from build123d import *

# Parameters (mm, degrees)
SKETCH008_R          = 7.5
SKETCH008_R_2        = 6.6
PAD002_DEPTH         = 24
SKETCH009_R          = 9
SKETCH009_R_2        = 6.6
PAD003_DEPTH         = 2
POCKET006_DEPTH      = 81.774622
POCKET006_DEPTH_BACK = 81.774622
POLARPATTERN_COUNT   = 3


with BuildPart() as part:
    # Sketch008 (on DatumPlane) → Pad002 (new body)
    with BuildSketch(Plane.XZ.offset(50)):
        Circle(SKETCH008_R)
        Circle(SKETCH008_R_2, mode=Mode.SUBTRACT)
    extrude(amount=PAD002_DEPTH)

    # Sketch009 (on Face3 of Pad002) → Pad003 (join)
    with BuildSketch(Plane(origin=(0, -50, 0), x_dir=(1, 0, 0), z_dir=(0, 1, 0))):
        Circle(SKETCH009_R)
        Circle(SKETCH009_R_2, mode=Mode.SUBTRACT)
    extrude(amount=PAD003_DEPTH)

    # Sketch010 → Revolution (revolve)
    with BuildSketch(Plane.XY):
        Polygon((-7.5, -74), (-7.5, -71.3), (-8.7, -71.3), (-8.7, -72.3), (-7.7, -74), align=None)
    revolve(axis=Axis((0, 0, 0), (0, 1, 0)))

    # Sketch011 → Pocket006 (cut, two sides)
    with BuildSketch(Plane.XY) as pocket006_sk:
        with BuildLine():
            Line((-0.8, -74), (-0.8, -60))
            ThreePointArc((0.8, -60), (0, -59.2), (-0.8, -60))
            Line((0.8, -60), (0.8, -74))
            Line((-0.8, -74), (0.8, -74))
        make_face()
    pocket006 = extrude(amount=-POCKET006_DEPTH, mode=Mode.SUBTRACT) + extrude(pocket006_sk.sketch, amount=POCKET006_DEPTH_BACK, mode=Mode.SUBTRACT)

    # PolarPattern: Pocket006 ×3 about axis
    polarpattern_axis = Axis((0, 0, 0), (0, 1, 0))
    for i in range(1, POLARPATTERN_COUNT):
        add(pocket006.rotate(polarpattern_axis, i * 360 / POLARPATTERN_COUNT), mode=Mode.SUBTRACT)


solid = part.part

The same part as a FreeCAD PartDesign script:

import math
import FreeCAD as App
import Part
import Sketcher


def add_polygon(sketch, points):
    """Adds a closed chain of lines whose ends are joined by coincident constraints."""
    first, n = sketch.GeometryCount, len(points)
    for a, b in zip(points, points[1:] + points[:1]):
        sketch.addGeometry(Part.LineSegment(App.Vector(*a, 0), App.Vector(*b, 0)), False)
    for i in range(n):
        sketch.addConstraint(Sketcher.Constraint("Coincident", first + i, 2, first + (i + 1) % n, 1))

doc = App.newDocument("Part")
body = doc.addObject("PartDesign::Body", "Body")

sketch1 = doc.addObject("Sketcher::SketchObject", "Sketch")
body.addObject(sketch1)
sketch1.AttachmentSupport = (doc.XZ_Plane, [""])
sketch1.MapMode = "FlatFace"
sketch1.AttachmentOffset = App.Placement(App.Vector(0, 0, 50), App.Rotation())
sketch1.addGeometry([
    Part.Circle(App.Vector(0, 0, 0), App.Vector(0, 0, 1), 7.5),
    Part.Circle(App.Vector(0, 0, 0), App.Vector(0, 0, 1), 6.6),
], False)
sketch1.addConstraint([
    Sketcher.Constraint("Coincident", 0, 3, -1, 1),
    Sketcher.Constraint("Coincident", 1, 3, -1, 1),
    Sketcher.Constraint("Diameter", 0, 15.0),
    Sketcher.Constraint("Diameter", 1, 13.2),
])
pad1 = doc.addObject("PartDesign::Pad", "Pad")
body.addObject(pad1)
pad1.Profile = sketch1
pad1.Length = 24

sketch2 = doc.addObject("Sketcher::SketchObject", "Sketch001")
body.addObject(sketch2)
sketch2.AttachmentSupport = (doc.XZ_Plane, [""])
sketch2.MapMode = "FlatFace"
sketch2.AttachmentOffset = App.Placement(App.Vector(0, 0, 50), App.Rotation())
sketch2.addGeometry([
    Part.Circle(App.Vector(0, 0, 0), App.Vector(0, 0, 1), 9),
    Part.Circle(App.Vector(0, 0, 0), App.Vector(0, 0, 1), 6.6),
], False)
sketch2.addConstraint([
    Sketcher.Constraint("Coincident", 0, 3, -1, 1),
    Sketcher.Constraint("Coincident", 1, 3, -1, 1),
    Sketcher.Constraint("Diameter", 0, 18.0),
    Sketcher.Constraint("Diameter", 1, 13.2),
])
pad2 = doc.addObject("PartDesign::Pad", "Pad001")
body.addObject(pad2)
pad2.Profile = sketch2
pad2.Length = 2
pad2.Reversed = True

sketch3 = doc.addObject("Sketcher::SketchObject", "Sketch002")
body.addObject(sketch3)
sketch3.AttachmentSupport = (doc.XY_Plane, [""])
sketch3.MapMode = "FlatFace"
add_polygon(sketch3, [(-7.5, -74), (-7.5, -71.3), (-8.7, -71.3), (-8.7, -72.3), (-7.7, -74)])
sketch3.addConstraint([
    Sketcher.Constraint("Vertical", 0),
    Sketcher.Constraint("Horizontal", 1),
    Sketcher.Constraint("Vertical", 2),
    Sketcher.Constraint("Horizontal", 4),
    Sketcher.Constraint("DistanceY", 2, 2, 2, 1, 1.0),
    Sketcher.Constraint("DistanceX", 1, 2, 1, 1, 1.2),
    Sketcher.Constraint("DistanceX", 4, 1, 4, 2, 0.2),
    Sketcher.Constraint("DistanceY", 0, 1, 0, 2, 2.7),
    Sketcher.Constraint("DistanceY", 3, 2, -1, 1, 74.0),
    Sketcher.Constraint("DistanceX", 0, 2, -1, 1, 7.5),
])
revolution = doc.addObject("PartDesign::Revolution", "Revolution")
body.addObject(revolution)
revolution.Profile = sketch3
revolution.ReferenceAxis = (sketch3, ["V_Axis"])
revolution.Angle = 360

sketch4 = doc.addObject("Sketcher::SketchObject", "Sketch003")
body.addObject(sketch4)
sketch4.AttachmentSupport = (doc.XY_Plane, [""])
sketch4.MapMode = "FlatFace"
sketch4.addGeometry([
    Part.LineSegment(App.Vector(-0.8, -60, 0), App.Vector(-0.8, -74, 0)),
    Part.LineSegment(App.Vector(-0.8, -74, 0), App.Vector(0.8, -74, 0)),
    Part.LineSegment(App.Vector(0.8, -74, 0), App.Vector(0.8, -60, 0)),
    Part.ArcOfCircle(Part.Circle(App.Vector(0, -60, 0), App.Vector(0, 0, 1), 0.8), math.radians(0), math.radians(180)),
], False)
sketch4.addConstraint([
    Sketcher.Constraint("Coincident", 0, 2, 1, 1),
    Sketcher.Constraint("Coincident", 1, 2, 2, 1),
    Sketcher.Constraint("Tangent", 2, 2, 3, 1),
    Sketcher.Constraint("Tangent", 3, 2, 0, 1),
    Sketcher.Constraint("Vertical", 0),
    Sketcher.Constraint("Horizontal", 1),
    Sketcher.Constraint("Vertical", 2),
    Sketcher.Constraint("PointOnObject", 3, 3, -2),
    Sketcher.Constraint("Radius", 3, 0.8),
    Sketcher.Constraint("DistanceY", 0, 2, 0, 1, 14.0),
    Sketcher.Constraint("DistanceY", 3, 3, -1, 1, 60.0),
])
pocket1 = doc.addObject("PartDesign::Pocket", "Pocket")
body.addObject(pocket1)
pocket1.Profile = sketch4
pocket1.Type = "ThroughAll"
pocket1.Midplane = True
doc.recompute()

polarpattern = doc.addObject("PartDesign::PolarPattern", "PolarPattern")
body.addObject(polarpattern)
polarpattern.Originals = [pocket1]
polarpattern.Axis = (doc.Y_Axis, [""])
polarpattern.Angle = 360
polarpattern.Occurrences = 3
body.Tip = polarpattern

doc.recompute()
